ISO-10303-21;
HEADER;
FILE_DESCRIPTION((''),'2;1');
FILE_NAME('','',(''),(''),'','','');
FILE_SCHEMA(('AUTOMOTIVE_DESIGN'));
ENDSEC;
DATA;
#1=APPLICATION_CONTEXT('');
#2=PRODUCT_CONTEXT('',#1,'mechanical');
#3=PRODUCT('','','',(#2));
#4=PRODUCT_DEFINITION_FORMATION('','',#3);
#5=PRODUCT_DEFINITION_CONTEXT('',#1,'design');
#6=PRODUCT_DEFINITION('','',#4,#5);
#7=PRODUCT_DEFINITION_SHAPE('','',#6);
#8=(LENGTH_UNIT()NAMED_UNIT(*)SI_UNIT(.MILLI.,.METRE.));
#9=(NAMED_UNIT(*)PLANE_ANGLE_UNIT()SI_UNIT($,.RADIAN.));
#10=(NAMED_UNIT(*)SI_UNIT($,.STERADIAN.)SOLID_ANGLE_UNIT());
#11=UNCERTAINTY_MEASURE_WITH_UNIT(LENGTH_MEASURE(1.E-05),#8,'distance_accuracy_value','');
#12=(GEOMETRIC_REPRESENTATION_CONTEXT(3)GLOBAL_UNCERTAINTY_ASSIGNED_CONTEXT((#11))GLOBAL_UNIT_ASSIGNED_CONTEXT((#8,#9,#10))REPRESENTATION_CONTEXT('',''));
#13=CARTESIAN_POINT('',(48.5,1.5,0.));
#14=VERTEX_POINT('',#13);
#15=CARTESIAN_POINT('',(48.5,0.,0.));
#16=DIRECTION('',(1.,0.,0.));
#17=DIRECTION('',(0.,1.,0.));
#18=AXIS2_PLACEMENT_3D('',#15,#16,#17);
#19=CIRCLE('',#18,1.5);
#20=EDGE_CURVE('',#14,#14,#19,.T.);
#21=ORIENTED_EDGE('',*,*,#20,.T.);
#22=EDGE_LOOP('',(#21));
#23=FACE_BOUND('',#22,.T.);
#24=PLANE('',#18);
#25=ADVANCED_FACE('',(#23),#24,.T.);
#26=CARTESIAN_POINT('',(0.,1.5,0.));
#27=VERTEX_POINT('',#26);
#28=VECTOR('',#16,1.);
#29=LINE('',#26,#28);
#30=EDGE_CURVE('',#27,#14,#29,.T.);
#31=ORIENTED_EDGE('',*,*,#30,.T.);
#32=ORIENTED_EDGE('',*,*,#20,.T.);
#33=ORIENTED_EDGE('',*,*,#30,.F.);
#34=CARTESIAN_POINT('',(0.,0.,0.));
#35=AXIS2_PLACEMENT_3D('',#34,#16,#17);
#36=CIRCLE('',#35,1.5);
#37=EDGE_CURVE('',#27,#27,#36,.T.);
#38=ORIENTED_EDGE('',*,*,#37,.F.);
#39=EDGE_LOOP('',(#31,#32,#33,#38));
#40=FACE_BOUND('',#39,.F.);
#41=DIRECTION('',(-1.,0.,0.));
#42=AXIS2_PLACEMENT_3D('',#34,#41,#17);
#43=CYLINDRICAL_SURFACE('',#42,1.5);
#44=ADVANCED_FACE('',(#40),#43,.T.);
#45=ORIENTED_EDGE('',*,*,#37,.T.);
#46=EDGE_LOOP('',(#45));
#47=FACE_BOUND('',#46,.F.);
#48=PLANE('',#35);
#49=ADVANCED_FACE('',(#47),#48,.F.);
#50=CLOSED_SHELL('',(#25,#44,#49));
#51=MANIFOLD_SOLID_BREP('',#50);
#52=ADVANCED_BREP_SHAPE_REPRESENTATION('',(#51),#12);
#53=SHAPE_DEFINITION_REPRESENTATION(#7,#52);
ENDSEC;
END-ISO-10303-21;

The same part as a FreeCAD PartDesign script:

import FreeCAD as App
import Part
import Sketcher

doc = App.newDocument("Part")
body = doc.addObject("PartDesign::Body", "Body")

# Sketch on YZ plane
sketch1 = body.newObject("Sketcher::SketchObject", "Sketch")
sketch1.AttachmentSupport = (doc.getObject("YZ_Plane"), [""])
sketch1.MapMode = "FlatFace"
sketch1.addGeometry(Part.Circle(App.Vector(0, 0, 0), App.Vector(0, 0, 1), 1.5), False)
sketch1.addConstraint(Sketcher.Constraint("Coincident", 0, 3, -1, 1))
sketch1.addConstraint(Sketcher.Constraint("Diameter", 0, 3.0))
pad1 = body.newObject("PartDesign::Pad", "Pad")
pad1.Profile = sketch1
pad1.Length = 48.5

doc.recompute()
